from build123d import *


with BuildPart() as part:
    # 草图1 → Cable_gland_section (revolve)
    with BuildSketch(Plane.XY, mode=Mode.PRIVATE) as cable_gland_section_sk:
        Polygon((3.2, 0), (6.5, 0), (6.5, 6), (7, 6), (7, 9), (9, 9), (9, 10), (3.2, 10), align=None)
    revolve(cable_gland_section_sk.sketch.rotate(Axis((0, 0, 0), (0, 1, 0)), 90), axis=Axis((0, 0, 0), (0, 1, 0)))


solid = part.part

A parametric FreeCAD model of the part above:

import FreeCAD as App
import Part
import Sketcher
Q = App.Units.Quantity


def add_polygon(sketch, points):
    """Adds a closed chain of lines whose ends are joined by coincident constraints."""
    first, n = sketch.GeometryCount, len(points)
    for a, b in zip(points, points[1:] + points[:1]):
        sketch.addGeometry(Part.LineSegment(App.Vector(*a, 0), App.Vector(*b, 0)), False)
    for i in range(n):
        sketch.addConstraint(Sketcher.Constraint("Coincident", first + i, 2, first + (i + 1) % n, 1))

doc = App.newDocument("Part")
body = doc.addObject("PartDesign::Body", "Body")

sketch1 = doc.addObject("Sketcher::SketchObject", "Sketch")
body.addObject(sketch1)
sketch1.AttachmentSupport = (doc.XY_Plane, [""])
sketch1.MapMode = "FlatFace"
add_polygon(sketch1, [(3.2, 0), (6.5, 0), (6.5, 6), (7, 6), (7, 9), (9, 9), (9, 10), (3.2, 10)])
sketch1.addConstraint(Sketcher.Constraint("Horizontal", 0))
sketch1.addConstraint(Sketcher.Constraint("Vertical", 1))
sketch1.addConstraint(Sketcher.Constraint("Horizontal", 2))
sketch1.addConstraint(Sketcher.Constraint("Vertical", 3))
sketch1.addConstraint(Sketcher.Constraint("Horizontal", 4))
sketch1.addConstraint(Sketcher.Constraint("Vertical", 5))
sketch1.addConstraint(Sketcher.Constraint("Horizontal", 6))
sketch1.addConstraint(Sketcher.Constraint("Vertical", 7))
sketch1.addConstraint(Sketcher.Constraint("PointOnObject", 0, 2, -1))
sketch1.addConstraint(Sketcher.Constraint("DistanceX", 4, 1, 4, 2, Q("2 mm")))
sketch1.addConstraint(Sketcher.Constraint("DistanceY", 1, 1, 1, 2, Q("6 mm")))
sketch1.addConstraint(Sketcher.Constraint("DistanceY", 3, 1, 3, 2, Q("3 mm")))
sketch1.addConstraint(Sketcher.Constraint("DistanceY", 5, 1, 5, 2, Q("1 mm")))
sketch1.addConstraint(Sketcher.Constraint("DistanceX", 0, 1, 0, 2, Q("3.3 mm")))
sketch1.addConstraint(Sketcher.Constraint("DistanceX", 2, 1, 2, 2, Q("0.5 mm")))
sketch1.addConstraint(Sketcher.Constraint("DistanceX", -1, 1, 2, 2, Q("7 mm")))
revolution = doc.addObject("PartDesign::Revolution", "Revolution")
body.addObject(revolution)
revolution.Profile = sketch1
revolution.ReferenceAxis = (sketch1, ["V_Axis"])
revolution.Angle = 360

doc.recompute()
